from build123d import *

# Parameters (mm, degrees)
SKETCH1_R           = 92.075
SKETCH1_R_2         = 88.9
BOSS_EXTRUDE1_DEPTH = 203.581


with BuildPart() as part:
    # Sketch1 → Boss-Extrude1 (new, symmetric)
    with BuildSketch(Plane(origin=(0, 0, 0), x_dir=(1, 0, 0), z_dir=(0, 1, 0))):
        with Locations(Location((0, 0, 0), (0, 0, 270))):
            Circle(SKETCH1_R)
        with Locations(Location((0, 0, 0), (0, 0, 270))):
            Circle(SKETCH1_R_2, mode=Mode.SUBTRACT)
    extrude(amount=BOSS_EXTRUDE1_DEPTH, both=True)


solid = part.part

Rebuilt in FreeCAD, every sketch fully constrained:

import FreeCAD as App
import Part
import Sketcher

V = App.Vector
Q = App.Units.Quantity

doc = App.newDocument("Part")
body = doc.addObject("PartDesign::Body", "Body")

# Sketch on XZ plane
sketch1 = doc.addObject("Sketcher::SketchObject", "Sketch")
body.addObject(sketch1)
sketch1.AttachmentSupport = (doc.XZ_Plane, [""])
sketch1.MapMode = "FlatFace"
sketch1.addGeometry([
    Part.Circle(V(0, 0, 0), V(0, 0, 1), 92),
    Part.Circle(V(0, 0, 0), V(0, 0, 1), 89),
], False)
sketch1.addConstraint([
    Sketcher.Constraint("Coincident", 0, 3, -1, 1),
    Sketcher.Constraint("Coincident", 1, 3, -1, 1),
    Sketcher.Constraint("Diameter", 1, Q("7 in")),
    Sketcher.Constraint("Diameter", 0, Q("7.25 in")),
])
pad1 = doc.addObject("PartDesign::Pad", "Pad")
body.addObject(pad1)
pad1.Profile = sketch1
pad1.Length = Q("16.03 in")
pad1.Midplane = True

doc.recompute()
